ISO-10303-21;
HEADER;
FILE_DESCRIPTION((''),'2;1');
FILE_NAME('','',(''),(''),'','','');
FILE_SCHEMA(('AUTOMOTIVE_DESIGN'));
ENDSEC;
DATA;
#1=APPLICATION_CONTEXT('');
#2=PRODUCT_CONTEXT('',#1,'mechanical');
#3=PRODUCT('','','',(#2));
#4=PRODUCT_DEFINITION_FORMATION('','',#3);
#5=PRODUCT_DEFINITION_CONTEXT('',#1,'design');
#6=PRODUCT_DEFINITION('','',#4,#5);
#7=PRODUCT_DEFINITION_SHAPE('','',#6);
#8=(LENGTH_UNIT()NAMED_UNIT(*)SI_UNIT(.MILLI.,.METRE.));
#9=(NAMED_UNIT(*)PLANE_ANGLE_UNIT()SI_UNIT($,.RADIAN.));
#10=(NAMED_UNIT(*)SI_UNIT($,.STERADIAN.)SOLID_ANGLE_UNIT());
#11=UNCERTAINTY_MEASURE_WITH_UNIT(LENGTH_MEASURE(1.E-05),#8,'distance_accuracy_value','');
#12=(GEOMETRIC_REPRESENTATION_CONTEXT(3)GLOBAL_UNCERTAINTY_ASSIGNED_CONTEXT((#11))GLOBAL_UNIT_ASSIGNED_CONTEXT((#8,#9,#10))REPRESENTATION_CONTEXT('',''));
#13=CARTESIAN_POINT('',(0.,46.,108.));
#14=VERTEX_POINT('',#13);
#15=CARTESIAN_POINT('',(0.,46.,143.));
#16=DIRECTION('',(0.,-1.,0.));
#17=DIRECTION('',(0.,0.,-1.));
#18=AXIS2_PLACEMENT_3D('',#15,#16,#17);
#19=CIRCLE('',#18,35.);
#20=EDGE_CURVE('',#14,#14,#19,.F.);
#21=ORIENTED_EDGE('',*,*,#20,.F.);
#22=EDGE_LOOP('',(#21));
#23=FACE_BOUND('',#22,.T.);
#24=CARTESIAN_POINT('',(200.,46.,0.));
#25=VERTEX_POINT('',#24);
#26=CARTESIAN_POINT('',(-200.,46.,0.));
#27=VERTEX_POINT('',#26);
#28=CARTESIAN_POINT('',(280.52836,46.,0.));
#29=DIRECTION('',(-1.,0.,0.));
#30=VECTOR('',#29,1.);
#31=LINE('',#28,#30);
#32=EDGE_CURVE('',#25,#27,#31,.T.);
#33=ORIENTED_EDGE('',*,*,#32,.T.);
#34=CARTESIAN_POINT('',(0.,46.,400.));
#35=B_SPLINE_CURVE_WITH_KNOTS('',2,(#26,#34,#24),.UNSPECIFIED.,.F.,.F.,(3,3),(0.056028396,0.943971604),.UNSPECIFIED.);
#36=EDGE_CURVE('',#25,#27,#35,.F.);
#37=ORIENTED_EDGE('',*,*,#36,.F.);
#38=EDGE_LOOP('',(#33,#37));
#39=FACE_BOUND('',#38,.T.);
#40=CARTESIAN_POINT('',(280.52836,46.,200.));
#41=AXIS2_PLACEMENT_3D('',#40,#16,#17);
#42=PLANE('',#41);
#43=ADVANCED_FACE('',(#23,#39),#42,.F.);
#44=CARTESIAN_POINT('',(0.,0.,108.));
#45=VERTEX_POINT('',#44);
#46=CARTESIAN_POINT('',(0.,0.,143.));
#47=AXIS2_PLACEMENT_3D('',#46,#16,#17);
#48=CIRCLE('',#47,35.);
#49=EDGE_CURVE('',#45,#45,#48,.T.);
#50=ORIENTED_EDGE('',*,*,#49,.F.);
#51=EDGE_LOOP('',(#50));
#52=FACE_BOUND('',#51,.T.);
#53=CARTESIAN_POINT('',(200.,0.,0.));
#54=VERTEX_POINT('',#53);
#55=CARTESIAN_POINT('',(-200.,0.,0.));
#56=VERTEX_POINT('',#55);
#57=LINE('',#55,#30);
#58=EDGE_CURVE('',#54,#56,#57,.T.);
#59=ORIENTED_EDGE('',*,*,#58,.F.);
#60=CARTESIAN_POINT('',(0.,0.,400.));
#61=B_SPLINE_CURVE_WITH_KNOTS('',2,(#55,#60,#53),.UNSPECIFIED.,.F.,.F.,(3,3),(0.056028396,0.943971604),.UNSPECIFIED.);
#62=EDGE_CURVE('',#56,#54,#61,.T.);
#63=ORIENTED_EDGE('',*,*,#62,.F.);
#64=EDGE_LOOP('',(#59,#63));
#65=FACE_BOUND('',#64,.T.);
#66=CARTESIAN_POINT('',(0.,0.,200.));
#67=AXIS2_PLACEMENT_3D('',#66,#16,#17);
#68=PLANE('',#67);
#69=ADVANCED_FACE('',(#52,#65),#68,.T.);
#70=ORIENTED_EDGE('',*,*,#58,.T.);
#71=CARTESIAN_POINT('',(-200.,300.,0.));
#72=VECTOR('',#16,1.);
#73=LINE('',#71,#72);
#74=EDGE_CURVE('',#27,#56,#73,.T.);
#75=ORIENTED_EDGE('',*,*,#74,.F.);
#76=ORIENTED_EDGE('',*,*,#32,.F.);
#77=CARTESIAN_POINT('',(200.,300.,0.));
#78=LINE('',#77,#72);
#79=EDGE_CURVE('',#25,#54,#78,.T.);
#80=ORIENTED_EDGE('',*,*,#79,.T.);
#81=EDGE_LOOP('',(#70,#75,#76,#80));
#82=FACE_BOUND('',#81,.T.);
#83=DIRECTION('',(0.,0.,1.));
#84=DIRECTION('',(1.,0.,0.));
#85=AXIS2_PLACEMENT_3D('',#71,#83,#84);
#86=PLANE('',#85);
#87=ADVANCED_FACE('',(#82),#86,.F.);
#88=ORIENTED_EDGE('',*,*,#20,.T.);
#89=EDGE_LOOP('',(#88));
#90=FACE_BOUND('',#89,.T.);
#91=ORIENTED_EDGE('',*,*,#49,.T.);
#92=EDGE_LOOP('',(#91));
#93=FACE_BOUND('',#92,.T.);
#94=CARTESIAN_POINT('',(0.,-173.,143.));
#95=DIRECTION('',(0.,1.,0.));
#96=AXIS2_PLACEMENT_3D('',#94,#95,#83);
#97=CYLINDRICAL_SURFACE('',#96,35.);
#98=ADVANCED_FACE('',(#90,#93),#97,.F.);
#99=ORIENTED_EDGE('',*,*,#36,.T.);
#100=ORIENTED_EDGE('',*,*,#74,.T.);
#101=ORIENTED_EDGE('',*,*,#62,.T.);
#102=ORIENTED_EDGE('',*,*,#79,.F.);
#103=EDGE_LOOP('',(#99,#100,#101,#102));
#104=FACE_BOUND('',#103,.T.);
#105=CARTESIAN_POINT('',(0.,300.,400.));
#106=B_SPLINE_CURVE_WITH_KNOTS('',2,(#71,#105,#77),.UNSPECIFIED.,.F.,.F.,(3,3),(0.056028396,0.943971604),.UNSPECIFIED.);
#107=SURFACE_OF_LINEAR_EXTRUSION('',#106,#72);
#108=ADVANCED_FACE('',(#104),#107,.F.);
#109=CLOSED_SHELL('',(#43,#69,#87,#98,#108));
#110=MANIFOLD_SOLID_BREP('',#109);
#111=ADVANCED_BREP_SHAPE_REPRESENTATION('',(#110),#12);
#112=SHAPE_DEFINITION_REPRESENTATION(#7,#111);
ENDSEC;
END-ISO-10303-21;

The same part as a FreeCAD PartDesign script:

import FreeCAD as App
import Part
import Sketcher


def add_polygon(sketch, points):
    """Adds a closed chain of lines whose ends are joined by coincident constraints."""
    first, n = sketch.GeometryCount, len(points)
    for a, b in zip(points, points[1:] + points[:1]):
        sketch.addGeometry(Part.LineSegment(App.Vector(*a, 0), App.Vector(*b, 0)), False)
    for i in range(n):
        sketch.addConstraint(Sketcher.Constraint("Coincident", first + i, 2, first + (i + 1) % n, 1))

doc = App.newDocument("Part")
body = doc.addObject("PartDesign::Body", "Body")

# Sketch on XZ plane
sketch1 = body.newObject("Sketcher::SketchObject", "Sketch")
sketch1.AttachmentSupport = (doc.getObject("XZ_Plane"), [""])
sketch1.MapMode = "FlatFace"
sketch1.addGeometry(Part.LineSegment(App.Vector(200, 0, 0), App.Vector(-200, 0, 0)), False)
sketch1.addGeometry(Part.BSplineCurve([App.Vector(-200, 0, 0), App.Vector(0, 400, 0), App.Vector(200, 0, 0)], [3, 3], [0.056028396, 0.943971604], False, 2, [1, 1, 1], False), False)
sketch1.addConstraint(Sketcher.Constraint("Block", 1))
sketch1.addConstraint(Sketcher.Constraint("Coincident", 0, 1, 1, 2))
sketch1.addConstraint(Sketcher.Constraint("Coincident", 1, 1, 0, 2))
pad1 = body.newObject("PartDesign::Pad", "Pad")
pad1.Profile = sketch1
pad1.Length = 300
pad1.Reversed = True

# Sketch on XZ plane
sketch2 = body.newObject("Sketcher::SketchObject", "Sketch001")
sketch2.AttachmentSupport = (doc.getObject("XZ_Plane"), [""])
sketch2.MapMode = "FlatFace"
sketch2.AttachmentOffset = App.Placement(App.Vector(0, 0, -150), App.Rotation())
sketch2.addGeometry(Part.Circle(App.Vector(0, 143, 0), App.Vector(0, 0, 1), 16), False)
sketch2.addConstraint(Sketcher.Constraint("PointOnObject", 0, 3, -2))
sketch2.addConstraint(Sketcher.Constraint("Diameter", 0, 31.0))
sketch2.addConstraint(Sketcher.Constraint("DistanceY", -1, 1, 0, 3, 143.0))
pocket1 = body.newObject("PartDesign::Pocket", "Pocket")
pocket1.Profile = sketch2
pocket1.Type = "TwoLengths"
pocket1.Length = 23
pocket1.Length2 = 23

# Sketch on XZ plane
sketch3 = body.newObject("Sketcher::SketchObject", "Sketch002")
sketch3.AttachmentSupport = (doc.getObject("XZ_Plane"), [""])
sketch3.MapMode = "FlatFace"
sketch3.AttachmentOffset = App.Placement(App.Vector(0, 0, -173), App.Rotation())
sketch3.addGeometry(Part.Circle(App.Vector(0, 143, 0), App.Vector(0, 0, 1), 35), False)
sketch3.addConstraint(Sketcher.Constraint("PointOnObject", 0, 3, -2))
sketch3.addConstraint(Sketcher.Constraint("Diameter", 0, 70.0))
sketch3.addConstraint(Sketcher.Constraint("DistanceY", -1, 1, 0, 3, 143.0))
pocket2 = body.newObject("PartDesign::Pocket", "Pocket001")
pocket2.Profile = sketch3
pocket2.Length = 300
doc.recompute()

datumplane = body.newObject("PartDesign::Plane", "DatumPlane")
datumplane.AttachmentSupport = (doc.getObject("XZ_Plane"), [""])
datumplane.MapMode = "FlatFace"
datumplane.AttachmentOffset = App.Placement(App.Vector(0, 0, -150), App.Rotation())
mirrored = body.newObject("PartDesign::Mirrored", "Mirrored")
mirrored.Originals = [pocket2]
mirrored.MirrorPlane = (datumplane, [""])
body.Tip = mirrored

# Sketch on XY plane
sketch4 = body.newObject("Sketcher::SketchObject", "Sketch003")
sketch4.AttachmentSupport = (doc.getObject("XY_Plane"), [""])
sketch4.MapMode = "FlatFace"
add_polygon(sketch4, [(281, 307), (281, 46), (-270, 46), (-270, 307)])  # lines 0-3
sketch4.addConstraint(Sketcher.Constraint("Vertical", 0))
sketch4.addConstraint(Sketcher.Constraint("Horizontal", 1))
sketch4.addConstraint(Sketcher.Constraint("Vertical", 2))
sketch4.addConstraint(Sketcher.Constraint("Horizontal", 3))
sketch4.addConstraint(Sketcher.Constraint("DistanceY", -1, 1, 0, 2, 46.0))
sketch4.addConstraint(Sketcher.Constraint("DistanceX", 1, 2, 1, 1, 550.332787))
sketch4.addConstraint(Sketcher.Constraint("DistanceY", 0, 2, 0, 1, 261.274025))
sketch4.addConstraint(Sketcher.Constraint("DistanceX", -1, 1, 0, 2, 280.52836))
pocket3 = body.newObject("PartDesign::Pocket", "Pocket002")
pocket3.Profile = sketch4
pocket3.Type = "ThroughAll"
pocket3.Reversed = True

doc.recompute()
